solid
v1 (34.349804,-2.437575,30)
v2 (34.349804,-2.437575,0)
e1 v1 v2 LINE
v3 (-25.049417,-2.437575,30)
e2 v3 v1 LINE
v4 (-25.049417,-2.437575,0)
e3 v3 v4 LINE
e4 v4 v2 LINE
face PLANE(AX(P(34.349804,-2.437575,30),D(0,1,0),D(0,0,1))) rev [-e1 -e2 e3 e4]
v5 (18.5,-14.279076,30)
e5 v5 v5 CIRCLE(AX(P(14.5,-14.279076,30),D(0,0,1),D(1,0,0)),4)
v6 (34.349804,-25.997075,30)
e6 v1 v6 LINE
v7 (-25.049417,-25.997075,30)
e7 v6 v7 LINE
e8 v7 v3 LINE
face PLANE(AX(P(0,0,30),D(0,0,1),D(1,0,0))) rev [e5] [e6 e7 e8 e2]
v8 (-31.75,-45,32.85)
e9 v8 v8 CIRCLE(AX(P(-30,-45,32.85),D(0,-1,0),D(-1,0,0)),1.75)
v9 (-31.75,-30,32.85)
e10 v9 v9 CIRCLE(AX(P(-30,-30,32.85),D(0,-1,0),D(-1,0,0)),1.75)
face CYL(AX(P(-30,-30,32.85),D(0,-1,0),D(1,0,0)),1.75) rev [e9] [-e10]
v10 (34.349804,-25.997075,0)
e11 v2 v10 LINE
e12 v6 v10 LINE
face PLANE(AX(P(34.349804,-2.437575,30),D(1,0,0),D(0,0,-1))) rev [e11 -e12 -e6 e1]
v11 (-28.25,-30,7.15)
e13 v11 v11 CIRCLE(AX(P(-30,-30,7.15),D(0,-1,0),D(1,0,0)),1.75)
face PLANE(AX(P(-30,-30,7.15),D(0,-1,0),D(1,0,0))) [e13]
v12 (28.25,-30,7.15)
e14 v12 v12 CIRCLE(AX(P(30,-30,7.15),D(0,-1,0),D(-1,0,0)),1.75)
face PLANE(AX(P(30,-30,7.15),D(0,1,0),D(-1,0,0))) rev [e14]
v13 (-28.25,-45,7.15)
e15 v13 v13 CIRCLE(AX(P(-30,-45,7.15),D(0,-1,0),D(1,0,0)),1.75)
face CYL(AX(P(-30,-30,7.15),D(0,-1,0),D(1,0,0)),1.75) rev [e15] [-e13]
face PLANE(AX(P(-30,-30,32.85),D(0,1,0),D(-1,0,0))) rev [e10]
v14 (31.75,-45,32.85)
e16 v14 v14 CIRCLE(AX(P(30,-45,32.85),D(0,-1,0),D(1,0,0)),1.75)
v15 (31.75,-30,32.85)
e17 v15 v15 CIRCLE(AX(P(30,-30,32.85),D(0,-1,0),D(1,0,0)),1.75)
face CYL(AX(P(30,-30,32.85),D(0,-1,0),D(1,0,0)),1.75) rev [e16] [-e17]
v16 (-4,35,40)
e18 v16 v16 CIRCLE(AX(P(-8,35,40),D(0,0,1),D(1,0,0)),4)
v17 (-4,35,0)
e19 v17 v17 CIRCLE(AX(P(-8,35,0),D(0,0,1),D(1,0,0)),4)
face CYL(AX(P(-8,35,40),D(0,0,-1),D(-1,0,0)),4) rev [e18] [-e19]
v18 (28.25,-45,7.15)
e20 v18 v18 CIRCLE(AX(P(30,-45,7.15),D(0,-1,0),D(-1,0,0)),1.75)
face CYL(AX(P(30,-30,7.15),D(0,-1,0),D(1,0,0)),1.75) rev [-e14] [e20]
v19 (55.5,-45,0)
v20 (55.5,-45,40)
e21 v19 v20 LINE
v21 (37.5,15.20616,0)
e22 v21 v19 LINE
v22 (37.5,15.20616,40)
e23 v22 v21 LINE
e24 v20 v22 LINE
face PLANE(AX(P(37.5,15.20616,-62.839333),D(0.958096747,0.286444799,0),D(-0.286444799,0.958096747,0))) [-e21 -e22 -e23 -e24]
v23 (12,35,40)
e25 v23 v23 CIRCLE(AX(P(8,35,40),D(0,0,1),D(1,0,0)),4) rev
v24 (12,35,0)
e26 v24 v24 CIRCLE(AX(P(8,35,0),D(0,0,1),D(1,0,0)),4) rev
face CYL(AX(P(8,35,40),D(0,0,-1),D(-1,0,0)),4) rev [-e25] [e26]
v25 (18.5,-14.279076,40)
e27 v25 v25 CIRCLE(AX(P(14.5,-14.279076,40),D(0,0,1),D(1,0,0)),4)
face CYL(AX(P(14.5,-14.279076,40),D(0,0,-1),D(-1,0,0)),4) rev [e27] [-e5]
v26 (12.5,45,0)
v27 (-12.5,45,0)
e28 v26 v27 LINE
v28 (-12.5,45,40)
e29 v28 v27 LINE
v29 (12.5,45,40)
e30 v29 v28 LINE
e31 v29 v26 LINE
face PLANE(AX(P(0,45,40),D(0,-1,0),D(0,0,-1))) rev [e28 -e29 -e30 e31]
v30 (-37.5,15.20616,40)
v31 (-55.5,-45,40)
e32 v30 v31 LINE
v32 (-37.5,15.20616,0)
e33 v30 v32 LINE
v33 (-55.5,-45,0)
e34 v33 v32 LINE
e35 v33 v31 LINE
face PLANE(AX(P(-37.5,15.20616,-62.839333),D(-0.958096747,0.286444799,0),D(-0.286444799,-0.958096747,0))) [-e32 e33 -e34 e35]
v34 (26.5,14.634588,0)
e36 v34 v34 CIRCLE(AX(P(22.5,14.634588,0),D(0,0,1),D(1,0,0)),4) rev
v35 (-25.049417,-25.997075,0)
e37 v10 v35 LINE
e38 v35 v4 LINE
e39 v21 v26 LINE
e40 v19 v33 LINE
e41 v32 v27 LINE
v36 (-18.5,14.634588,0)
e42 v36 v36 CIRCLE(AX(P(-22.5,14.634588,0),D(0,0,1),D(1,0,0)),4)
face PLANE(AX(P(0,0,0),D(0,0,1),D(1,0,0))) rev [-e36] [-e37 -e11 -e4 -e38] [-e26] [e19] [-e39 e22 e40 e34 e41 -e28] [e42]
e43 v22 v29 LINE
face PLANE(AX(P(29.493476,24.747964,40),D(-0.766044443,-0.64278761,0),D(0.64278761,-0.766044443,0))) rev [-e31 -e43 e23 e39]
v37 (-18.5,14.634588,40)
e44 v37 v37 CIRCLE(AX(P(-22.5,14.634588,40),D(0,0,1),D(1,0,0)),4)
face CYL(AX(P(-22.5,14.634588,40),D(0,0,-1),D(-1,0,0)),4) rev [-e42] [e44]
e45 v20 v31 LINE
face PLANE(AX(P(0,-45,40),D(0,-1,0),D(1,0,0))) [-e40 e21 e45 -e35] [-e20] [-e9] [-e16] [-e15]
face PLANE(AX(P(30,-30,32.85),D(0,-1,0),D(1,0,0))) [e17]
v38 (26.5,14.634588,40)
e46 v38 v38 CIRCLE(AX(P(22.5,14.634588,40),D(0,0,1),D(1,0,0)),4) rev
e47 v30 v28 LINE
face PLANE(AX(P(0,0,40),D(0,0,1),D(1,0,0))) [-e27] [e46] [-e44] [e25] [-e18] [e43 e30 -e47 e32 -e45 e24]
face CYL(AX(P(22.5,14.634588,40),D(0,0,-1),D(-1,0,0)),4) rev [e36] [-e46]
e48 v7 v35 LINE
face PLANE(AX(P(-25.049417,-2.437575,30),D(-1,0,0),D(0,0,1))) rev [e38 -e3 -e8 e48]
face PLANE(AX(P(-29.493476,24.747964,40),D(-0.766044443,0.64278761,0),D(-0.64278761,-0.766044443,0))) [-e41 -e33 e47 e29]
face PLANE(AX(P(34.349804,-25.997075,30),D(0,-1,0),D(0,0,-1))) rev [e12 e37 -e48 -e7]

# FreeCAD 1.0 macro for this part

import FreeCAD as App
import Part
import Sketcher
from FreeCAD import Vector
Q = App.Units.Quantity


def add_polygon(sketch, points):
    """Adds a closed chain of lines whose ends are joined by coincident constraints."""
    first, n = sketch.GeometryCount, len(points)
    for a, b in zip(points, points[1:] + points[:1]):
        sketch.addGeometry(Part.LineSegment(App.Vector(*a, 0), App.Vector(*b, 0)), False)
    for i in range(n):
        sketch.addConstraint(Sketcher.Constraint("Coincident", first + i, 2, first + (i + 1) % n, 1))

doc = App.newDocument("Part")
params = doc.addObject("Spreadsheet::Sheet", "Params")
for row, (alias, value) in enumerate([
    ("sketch1_diameter", "8 mm"),
    ("sketch1_width", "25 mm"),
    ("sketch1_width2", "75 mm"),
    ("pad1_length", "40 mm"),
    ("sketch2_diameter", "3.5 mm"),
    ("pocket1_length", "15 mm"),
    ("pocket2_length", "30 mm"),
    ("sketch4_width", "18 mm"),
    ("pad2_length", "40 mm"),
], start=1):
    params.set(f"A{row}", alias)
    params.set(f"B{row}", "=" + value)
    params.setAlias(f"B{row}", alias)

body = doc.addObject("PartDesign::Body", "Body")

# Sketch on XY plane
sketch1 = body.newObject("Sketcher::SketchObject", "Sketch")
sketch1.AttachmentSupport = (doc.getObject("XY_Plane"), [""])
sketch1.MapMode = "FlatFace"
add_polygon(sketch1, [(37.5, -45), (37.5, 15.2), (12.5, 45), (-12.5, 45), (-37.5, 15.2), (-37.5, -45)])  # lines 0-5
sketch1.addGeometry(Part.Circle(Vector(14.5, -14.3, 0), Vector(0, 0, 1), 4), False)  # 6
sketch1.addGeometry(Part.Circle(Vector(8, 35, 0), Vector(0, 0, 1), 4), False)  # 7
sketch1.addGeometry(Part.Circle(Vector(22.5, 14.6, 0), Vector(0, 0, 1), 4), False)  # 8
sketch1.addGeometry(Part.Circle(Vector(-8, 35, 0), Vector(0, 0, 1), 4), False)  # 9
sketch1.addGeometry(Part.Circle(Vector(-22.5, 14.6, 0), Vector(0, 0, 1), 4), False)  # 10
sketch1.addConstraint([
    Sketcher.Constraint("Vertical", 0),
    Sketcher.Constraint("Horizontal", 2),
    Sketcher.Constraint("Vertical", 4),
    Sketcher.Constraint("Horizontal", 5),
    Sketcher.Constraint("Equal", 6, 7),
    Sketcher.Constraint("Equal", 7, 8),
    Sketcher.Constraint("Equal", 8, 9),
    Sketcher.Constraint("Equal", 9, 10),
    Sketcher.Constraint("Symmetric", 7, 3, 9, 3, -2),
    Sketcher.Constraint("Symmetric", 8, 3, 10, 3, -2),
    Sketcher.Constraint("Symmetric", 0, 2, 3, 2, -2),
    Sketcher.Constraint("Equal", 1, 3),
    Sketcher.Constraint("Diameter", 6, Q("8 mm")),
    Sketcher.Constraint("DistanceX", 2, 2, 2, 1, Q("25 mm")),
    Sketcher.Constraint("DistanceX", 5, 1, 5, 2, Q("75 mm")),
    Sketcher.Constraint("Angle", 1, Q("130 deg")),
    Sketcher.Constraint("DistanceX", -1, 1, 7, 3, Q("8 mm")),
    Sketcher.Constraint("DistanceY", -1, 1, 7, 3, Q("35 mm")),
    Sketcher.Constraint("DistanceY", -1, 1, 1, 2, Q("45 mm")),
    Sketcher.Constraint("DistanceY", 4, 2, -1, 1, Q("45 mm")),
    Sketcher.Constraint("DistanceX", 6, 3, 8, 3, Q("8 mm")),
    Sketcher.Constraint("DistanceX", 10, 3, 8, 3, Q("45 mm")),
    Sketcher.Constraint("DistanceY", -1, 1, 8, 3, Q("14.634588 mm")),
    Sketcher.Constraint("DistanceY", 6, 3, -1, 1, Q("14.279076 mm")),
])
sketch1.setExpression("Constraints[18]", "Params.sketch1_diameter")
sketch1.setExpression("Constraints[19]", "Params.sketch1_width")
sketch1.setExpression("Constraints[20]", "Params.sketch1_width2")
pad1 = body.newObject("PartDesign::Pad", "Pad")
pad1.Profile = sketch1
pad1.setExpression("Length", "Params.pad1_length")

# Sketch on XZ plane
sketch2 = body.newObject("Sketcher::SketchObject", "Sketch001")
sketch2.AttachmentSupport = (doc.getObject("XZ_Plane"), [""])
sketch2.MapMode = "FlatFace"
sketch2.AttachmentOffset = App.Placement(Vector(0, 0, 45), App.Rotation())
sketch2.addGeometry([
    Part.Circle(Vector(-30, 7.2, 0), Vector(0, 0, 1), 1.8),
    Part.Circle(Vector(30, 7.2, 0), Vector(0, 0, 1), 1.8),
    Part.Circle(Vector(30, 32.9, 0), Vector(0, 0, 1), 1.8),
    Part.Circle(Vector(-30, 32.9, 0), Vector(0, 0, 1), 1.8),
], False)
sketch2.addConstraint([
    Sketcher.Constraint("Equal", 0, 1),
    Sketcher.Constraint("Equal", 1, 2),
    Sketcher.Constraint("Equal", 2, 3),
    Sketcher.Constraint("Symmetric", 0, 3, 1, 3, -2),
    Sketcher.Constraint("Symmetric", 2, 3, 3, 3, -2),
    Sketcher.Constraint("Vertical", 1, 3, 2, 3),
    Sketcher.Constraint("Diameter", 0, Q("3.5 mm")),
    Sketcher.Constraint("DistanceX", 0, 3, -1, 1, Q("30 mm")),
    Sketcher.Constraint("DistanceY", 1, 3, 2, 3, Q("25.7 mm")),
    Sketcher.Constraint("DistanceY", -1, 1, 0, 3, Q("7.15 mm")),
])
sketch2.setExpression("Constraints[6]", "Params.sketch2_diameter")
pocket1 = body.newObject("PartDesign::Pocket", "Pocket")
pocket1.Profile = sketch2
pocket1.setExpression("Length", "Params.pocket1_length")

# Sketch on XY plane
sketch3 = body.newObject("Sketcher::SketchObject", "Sketch002")
sketch3.AttachmentSupport = (doc.getObject("XY_Plane"), [""])
sketch3.MapMode = "FlatFace"
add_polygon(sketch3, [(34, -2), (34, -26), (-25, -26), (-25, -2)])  # lines 0-3
sketch3.addConstraint([
    Sketcher.Constraint("Vertical", 0),
    Sketcher.Constraint("Horizontal", 1),
    Sketcher.Constraint("Vertical", 2),
    Sketcher.Constraint("Horizontal", 3),
    Sketcher.Constraint("DistanceY", 0, 2, 0, 1, Q("23.5595 mm")),
    Sketcher.Constraint("DistanceX", 1, 2, 1, 1, Q("59.399221 mm")),
    Sketcher.Constraint("DistanceX", -1, 1, 0, 2, Q("34.349804 mm")),
    Sketcher.Constraint("DistanceY", 0, 2, -1, 1, Q("25.997075 mm")),
])
pocket2 = body.newObject("PartDesign::Pocket", "Pocket001")
pocket2.Profile = sketch3
pocket2.setExpression("Length", "Params.pocket2_length")
pocket2.Reversed = True

# Sketch on XY plane
sketch4 = body.newObject("Sketcher::SketchObject", "Sketch003")
sketch4.AttachmentSupport = (doc.getObject("XY_Plane"), [""])
sketch4.MapMode = "FlatFace"
sketch4.AttachmentOffset = App.Placement(Vector(0, 0, 40), App.Rotation())
add_polygon(sketch4, [(-38, 15), (-56, -45), (-38, -45)])  # lines 0-2
add_polygon(sketch4, [(38, 15), (38, -45), (56, -45)])  # lines 3-5
sketch4.addConstraint([
    Sketcher.Constraint("Horizontal", 1),
    Sketcher.Constraint("Vertical", 2),
    Sketcher.Constraint("Vertical", 3),
    Sketcher.Constraint("Horizontal", 4),
    Sketcher.Constraint("Symmetric", 1, 2, 3, 2, -2),
    Sketcher.Constraint("Horizontal", 2, 2, 5, 2),
    Sketcher.Constraint("Equal", 1, 4),
    Sketcher.Constraint("DistanceX", 1, 1, 1, 2, Q("18 mm")),
    Sketcher.Constraint("DistanceY", 0, 2, -1, 1, Q("45 mm")),
    Sketcher.Constraint("DistanceX", 1, 2, 3, 2, Q("75 mm")),
    Sketcher.Constraint("DistanceY", 2, 1, 2, 2, Q("60.20616 mm")),
])
sketch4.setExpression("Constraints[13]", "Params.sketch4_width")
pad2 = body.newObject("PartDesign::Pad", "Pad001")
pad2.Profile = sketch4
pad2.setExpression("Length", "Params.pad2_length")
pad2.Reversed = True

doc.recompute()
